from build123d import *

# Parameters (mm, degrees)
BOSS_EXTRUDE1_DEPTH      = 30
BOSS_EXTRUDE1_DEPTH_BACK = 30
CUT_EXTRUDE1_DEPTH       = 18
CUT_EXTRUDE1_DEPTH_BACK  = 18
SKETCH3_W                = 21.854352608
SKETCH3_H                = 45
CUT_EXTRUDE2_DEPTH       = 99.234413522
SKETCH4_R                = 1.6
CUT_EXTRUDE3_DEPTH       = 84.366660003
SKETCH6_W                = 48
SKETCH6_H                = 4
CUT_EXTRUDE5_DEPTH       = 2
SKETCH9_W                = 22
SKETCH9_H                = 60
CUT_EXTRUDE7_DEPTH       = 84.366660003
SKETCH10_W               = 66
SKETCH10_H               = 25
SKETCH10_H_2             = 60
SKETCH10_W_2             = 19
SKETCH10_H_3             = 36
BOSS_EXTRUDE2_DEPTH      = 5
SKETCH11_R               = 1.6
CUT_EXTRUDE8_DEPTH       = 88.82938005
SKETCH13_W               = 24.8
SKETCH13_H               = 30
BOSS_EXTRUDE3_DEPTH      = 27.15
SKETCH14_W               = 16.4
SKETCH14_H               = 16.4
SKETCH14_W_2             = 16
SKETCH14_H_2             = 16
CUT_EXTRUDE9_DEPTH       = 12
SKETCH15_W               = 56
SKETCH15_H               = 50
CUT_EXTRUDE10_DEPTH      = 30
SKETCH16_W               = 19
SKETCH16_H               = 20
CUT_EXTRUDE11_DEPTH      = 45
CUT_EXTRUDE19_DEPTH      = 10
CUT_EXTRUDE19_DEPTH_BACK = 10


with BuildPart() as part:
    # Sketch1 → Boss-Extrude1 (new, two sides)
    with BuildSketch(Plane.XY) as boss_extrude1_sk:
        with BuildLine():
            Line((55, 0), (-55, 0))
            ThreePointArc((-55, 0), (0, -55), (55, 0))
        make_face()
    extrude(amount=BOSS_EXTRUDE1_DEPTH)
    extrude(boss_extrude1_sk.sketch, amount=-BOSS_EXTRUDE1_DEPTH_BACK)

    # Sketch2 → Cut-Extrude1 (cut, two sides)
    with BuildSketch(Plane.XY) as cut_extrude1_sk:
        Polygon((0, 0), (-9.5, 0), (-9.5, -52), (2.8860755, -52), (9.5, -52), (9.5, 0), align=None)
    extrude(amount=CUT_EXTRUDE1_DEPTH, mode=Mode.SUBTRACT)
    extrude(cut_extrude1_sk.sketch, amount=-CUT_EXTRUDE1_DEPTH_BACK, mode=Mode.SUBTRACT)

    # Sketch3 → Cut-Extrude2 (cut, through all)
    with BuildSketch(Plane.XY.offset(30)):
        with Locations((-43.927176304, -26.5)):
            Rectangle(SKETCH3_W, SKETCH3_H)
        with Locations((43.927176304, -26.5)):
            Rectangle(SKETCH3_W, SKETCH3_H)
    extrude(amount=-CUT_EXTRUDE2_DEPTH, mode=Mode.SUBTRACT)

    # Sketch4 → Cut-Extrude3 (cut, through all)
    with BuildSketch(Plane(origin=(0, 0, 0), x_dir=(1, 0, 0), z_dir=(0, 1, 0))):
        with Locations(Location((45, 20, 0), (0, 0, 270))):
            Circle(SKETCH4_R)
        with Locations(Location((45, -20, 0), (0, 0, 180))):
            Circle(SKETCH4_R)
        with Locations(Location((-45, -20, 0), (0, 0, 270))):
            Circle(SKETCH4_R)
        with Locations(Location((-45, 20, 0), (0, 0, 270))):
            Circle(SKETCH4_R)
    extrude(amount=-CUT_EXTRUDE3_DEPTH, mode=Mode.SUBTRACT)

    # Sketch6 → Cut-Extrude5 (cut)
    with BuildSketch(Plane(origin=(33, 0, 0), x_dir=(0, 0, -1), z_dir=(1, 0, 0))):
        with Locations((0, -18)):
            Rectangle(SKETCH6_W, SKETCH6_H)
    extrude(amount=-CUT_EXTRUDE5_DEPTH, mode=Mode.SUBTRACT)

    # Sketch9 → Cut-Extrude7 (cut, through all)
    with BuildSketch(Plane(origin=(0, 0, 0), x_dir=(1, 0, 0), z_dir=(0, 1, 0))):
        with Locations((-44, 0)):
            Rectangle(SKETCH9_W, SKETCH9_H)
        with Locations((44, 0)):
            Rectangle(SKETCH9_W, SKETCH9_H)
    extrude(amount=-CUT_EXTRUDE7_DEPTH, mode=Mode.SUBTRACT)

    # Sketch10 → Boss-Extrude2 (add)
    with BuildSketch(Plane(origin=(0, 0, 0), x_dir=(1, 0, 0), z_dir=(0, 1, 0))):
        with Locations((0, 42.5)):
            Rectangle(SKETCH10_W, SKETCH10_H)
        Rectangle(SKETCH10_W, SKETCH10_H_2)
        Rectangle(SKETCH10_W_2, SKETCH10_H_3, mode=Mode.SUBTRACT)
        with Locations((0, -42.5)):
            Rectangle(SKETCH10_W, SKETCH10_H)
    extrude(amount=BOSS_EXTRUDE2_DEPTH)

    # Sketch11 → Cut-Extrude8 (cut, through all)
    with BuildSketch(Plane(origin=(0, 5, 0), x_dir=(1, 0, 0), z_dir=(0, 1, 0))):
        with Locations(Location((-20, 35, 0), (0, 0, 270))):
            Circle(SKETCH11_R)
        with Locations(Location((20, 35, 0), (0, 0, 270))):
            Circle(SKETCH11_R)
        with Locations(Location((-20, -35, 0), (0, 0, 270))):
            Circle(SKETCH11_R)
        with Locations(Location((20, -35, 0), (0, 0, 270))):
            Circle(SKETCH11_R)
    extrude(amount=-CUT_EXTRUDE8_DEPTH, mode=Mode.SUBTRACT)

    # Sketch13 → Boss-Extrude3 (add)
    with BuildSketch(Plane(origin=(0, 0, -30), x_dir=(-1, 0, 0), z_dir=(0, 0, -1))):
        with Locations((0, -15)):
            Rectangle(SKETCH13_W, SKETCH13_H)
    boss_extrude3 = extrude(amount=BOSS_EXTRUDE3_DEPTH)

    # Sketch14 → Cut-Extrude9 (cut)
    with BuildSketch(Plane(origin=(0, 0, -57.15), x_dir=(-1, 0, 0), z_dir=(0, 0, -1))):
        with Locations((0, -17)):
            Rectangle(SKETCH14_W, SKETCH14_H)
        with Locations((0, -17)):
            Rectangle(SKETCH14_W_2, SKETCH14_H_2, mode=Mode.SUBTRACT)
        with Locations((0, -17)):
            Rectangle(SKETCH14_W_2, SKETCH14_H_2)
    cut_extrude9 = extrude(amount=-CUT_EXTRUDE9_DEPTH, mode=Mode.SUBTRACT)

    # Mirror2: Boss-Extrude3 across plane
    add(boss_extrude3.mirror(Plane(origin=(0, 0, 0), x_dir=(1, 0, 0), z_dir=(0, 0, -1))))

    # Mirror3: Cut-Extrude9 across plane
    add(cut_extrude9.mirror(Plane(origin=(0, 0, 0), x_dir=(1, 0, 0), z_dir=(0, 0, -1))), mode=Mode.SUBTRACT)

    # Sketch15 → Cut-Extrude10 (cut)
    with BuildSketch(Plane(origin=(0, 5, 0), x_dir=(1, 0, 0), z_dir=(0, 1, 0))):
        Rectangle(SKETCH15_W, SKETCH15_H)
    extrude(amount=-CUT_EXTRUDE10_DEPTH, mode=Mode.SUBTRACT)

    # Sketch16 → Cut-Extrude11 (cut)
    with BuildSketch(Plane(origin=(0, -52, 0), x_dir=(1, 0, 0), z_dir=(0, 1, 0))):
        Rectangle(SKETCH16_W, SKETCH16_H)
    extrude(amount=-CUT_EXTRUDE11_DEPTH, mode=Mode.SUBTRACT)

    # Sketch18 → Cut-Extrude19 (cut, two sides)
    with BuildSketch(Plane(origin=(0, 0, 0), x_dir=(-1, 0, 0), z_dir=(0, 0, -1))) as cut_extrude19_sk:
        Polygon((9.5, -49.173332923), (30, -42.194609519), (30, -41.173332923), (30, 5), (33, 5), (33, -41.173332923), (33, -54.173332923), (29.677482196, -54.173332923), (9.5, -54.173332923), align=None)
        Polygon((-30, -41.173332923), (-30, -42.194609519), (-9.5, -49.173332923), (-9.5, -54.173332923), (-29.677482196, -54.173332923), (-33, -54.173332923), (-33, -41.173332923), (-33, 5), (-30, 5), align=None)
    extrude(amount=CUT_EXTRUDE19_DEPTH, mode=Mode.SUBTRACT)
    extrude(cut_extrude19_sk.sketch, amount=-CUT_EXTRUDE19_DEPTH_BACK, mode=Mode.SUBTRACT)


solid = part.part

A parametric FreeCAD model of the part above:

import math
import FreeCAD as App
import Part
import Sketcher


def add_polygon(sketch, points):
    """Adds a closed chain of lines whose ends are joined by coincident constraints."""
    first, n = sketch.GeometryCount, len(points)
    for a, b in zip(points, points[1:] + points[:1]):
        sketch.addGeometry(Part.LineSegment(App.Vector(*a, 0), App.Vector(*b, 0)), False)
    for i in range(n):
        sketch.addConstraint(Sketcher.Constraint("Coincident", first + i, 2, first + (i + 1) % n, 1))

doc = App.newDocument("Part")
body = doc.addObject("PartDesign::Body", "Body")

sketch1 = body.newObject("Sketcher::SketchObject", "Sketch")
sketch1.AttachmentSupport = (doc.getObject("XY_Plane"), [""])
sketch1.MapMode = "FlatFace"
sketch1.addGeometry(Part.LineSegment(App.Vector(55, 0, 0), App.Vector(-55, 0, 0)), False)
sketch1.addGeometry(Part.ArcOfCircle(Part.Circle(App.Vector(0, 0, 0), App.Vector(0, 0, 1), 55), math.radians(180), math.radians(360)), False)
sketch1.addConstraint(Sketcher.Constraint("Coincident", 0, 1, 1, 2))
sketch1.addConstraint(Sketcher.Constraint("Coincident", 1, 1, 0, 2))
sketch1.addConstraint(Sketcher.Constraint("Horizontal", 0))
sketch1.addConstraint(Sketcher.Constraint("Coincident", 1, 3, -1, 1))
sketch1.addConstraint(Sketcher.Constraint("PointOnObject", 0, 1, -1))
sketch1.addConstraint(Sketcher.Constraint("Radius", 1, 55.0))
pad1 = body.newObject("PartDesign::Pad", "Pad")
pad1.Profile = sketch1
pad1.Type = "TwoLengths"
pad1.Length = 30
pad1.Length2 = 30

sketch2 = body.newObject("Sketcher::SketchObject", "Sketch001")
sketch2.AttachmentSupport = (doc.getObject("XY_Plane"), [""])
sketch2.MapMode = "FlatFace"
add_polygon(sketch2, [(-9.5, 0), (-9.5, -52), (9.5, -52), (9.5, 0)])
sketch2.addConstraint(Sketcher.Constraint("Vertical", 0))
sketch2.addConstraint(Sketcher.Constraint("Horizontal", 1))
sketch2.addConstraint(Sketcher.Constraint("Vertical", 2))
sketch2.addConstraint(Sketcher.Constraint("Horizontal", 3))
sketch2.addConstraint(Sketcher.Constraint("Symmetric", 2, 2, 3, 2, -1, 1))
sketch2.addConstraint(Sketcher.Constraint("DistanceX", 1, 1, 1, 2, 19.0))
sketch2.addConstraint(Sketcher.Constraint("DistanceY", 0, 2, 0, 1, 52.0))
pocket1 = body.newObject("PartDesign::Pocket", "Pocket")
pocket1.Profile = sketch2
pocket1.Type = "TwoLengths"
pocket1.Length = 18
pocket1.Length2 = 18
pocket1.Reversed = True

sketch3 = body.newObject("Sketcher::SketchObject", "Sketch002")
sketch3.AttachmentSupport = (doc.getObject("XY_Plane"), [""])
sketch3.MapMode = "FlatFace"
sketch3.AttachmentOffset = App.Placement(App.Vector(0, 0, 30), App.Rotation())
add_polygon(sketch3, [(-54.854353, -4), (-54.854353, -49), (-33, -49), (-33, -4)])
add_polygon(sketch3, [(33, -4), (33, -49), (54.854353, -49), (54.854353, -4)])
sketch3.addConstraint(Sketcher.Constraint("Vertical", 0))
sketch3.addConstraint(Sketcher.Constraint("Horizontal", 1))
sketch3.addConstraint(Sketcher.Constraint("Vertical", 2))
sketch3.addConstraint(Sketcher.Constraint("Horizontal", 3))
sketch3.addConstraint(Sketcher.Constraint("Vertical", 4))
sketch3.addConstraint(Sketcher.Constraint("Horizontal", 5))
sketch3.addConstraint(Sketcher.Constraint("Vertical", 6))
sketch3.addConstraint(Sketcher.Constraint("Horizontal", 7))
sketch3.addConstraint(Sketcher.Constraint("Symmetric", 1, 2, 4, 2, -2))
sketch3.addConstraint(Sketcher.Constraint("Symmetric", 3, 2, 6, 2, -2))
sketch3.addConstraint(Sketcher.Constraint("DistanceY", 0, 2, 0, 1, 45.0))
sketch3.addConstraint(Sketcher.Constraint("DistanceY", 0, 2, -1, 1, 49.0))
sketch3.addConstraint(Sketcher.Constraint("DistanceX", 1, 2, -1, 1, 33.0))
sketch3.addConstraint(Sketcher.Constraint("DistanceX", 1, 1, 1, 2, 21.854353))
pocket2 = body.newObject("PartDesign::Pocket", "Pocket001")
pocket2.Profile = sketch3
pocket2.Type = "ThroughAll"

sketch4 = body.newObject("Sketcher::SketchObject", "Sketch003")
sketch4.AttachmentSupport = (doc.getObject("XZ_Plane"), [""])
sketch4.MapMode = "FlatFace"
sketch4.addGeometry(Part.Circle(App.Vector(45, -20, 0), App.Vector(0, 0, 1), 1.6), False)
sketch4.addGeometry(Part.Circle(App.Vector(45, 20, 0), App.Vector(0, 0, 1), 1.6), False)
sketch4.addGeometry(Part.Circle(App.Vector(-45, 20, 0), App.Vector(0, 0, 1), 1.6), False)
sketch4.addGeometry(Part.Circle(App.Vector(-45, -20, 0), App.Vector(0, 0, 1), 1.6), False)
sketch4.addConstraint(Sketcher.Constraint("Equal", 0, 1))
sketch4.addConstraint(Sketcher.Constraint("Equal", 1, 2))
sketch4.addConstraint(Sketcher.Constraint("Equal", 2, 3))
sketch4.addConstraint(Sketcher.Constraint("Symmetric", 0, 3, 2, 3, -1, 1))
sketch4.addConstraint(Sketcher.Constraint("Symmetric", 1, 3, 3, 3, -1, 1))
sketch4.addConstraint(Sketcher.Constraint("Symmetric", 1, 3, 2, 3, -2))
sketch4.addConstraint(Sketcher.Constraint("Diameter", 0, 3.2))
sketch4.addConstraint(Sketcher.Constraint("DistanceX", -1, 1, 0, 3, 45.0))
sketch4.addConstraint(Sketcher.Constraint("DistanceY", 0, 3, -1, 1, 20.0))
pocket3 = body.newObject("PartDesign::Pocket", "Pocket002")
pocket3.Profile = sketch4
pocket3.Type = "ThroughAll"
pocket3.Reversed = True

sketch5 = body.newObject("Sketcher::SketchObject", "Sketch004")
sketch5.AttachmentSupport = (doc.getObject("YZ_Plane"), [""])
sketch5.MapMode = "FlatFace"
sketch5.AttachmentOffset = App.Placement(App.Vector(0, 0, 33), App.Rotation())
add_polygon(sketch5, [(-16, 24), (-20, 24), (-20, -24), (-16, -24)])
sketch5.addConstraint(Sketcher.Constraint("Horizontal", 0))
sketch5.addConstraint(Sketcher.Constraint("Vertical", 1))
sketch5.addConstraint(Sketcher.Constraint("Horizontal", 2))
sketch5.addConstraint(Sketcher.Constraint("Vertical", 3))
sketch5.addConstraint(Sketcher.Constraint("DistanceX", 0, 2, 0, 1, 4.0))
sketch5.addConstraint(Sketcher.Constraint("DistanceY", 1, 2, 1, 1, 48.0))
sketch5.addConstraint(Sketcher.Constraint("DistanceX", 0, 2, -1, 1, 20.0))
sketch5.addConstraint(Sketcher.Constraint("DistanceY", -1, 1, 0, 2, 24.0))
pocket4 = body.newObject("PartDesign::Pocket", "Pocket003")
pocket4.Profile = sketch5
pocket4.Length = 2

sketch6 = body.newObject("Sketcher::SketchObject", "Sketch005")
sketch6.AttachmentSupport = (doc.getObject("XZ_Plane"), [""])
sketch6.MapMode = "FlatFace"
add_polygon(sketch6, [(-55, -30), (-55, 30), (-33, 30), (-33, -30)])
add_polygon(sketch6, [(33, -30), (33, 30), (55, 30), (55, -30)])
sketch6.addConstraint(Sketcher.Constraint("Vertical", 0))
sketch6.addConstraint(Sketcher.Constraint("Horizontal", 1))
sketch6.addConstraint(Sketcher.Constraint("Vertical", 2))
sketch6.addConstraint(Sketcher.Constraint("Horizontal", 3))
sketch6.addConstraint(Sketcher.Constraint("Vertical", 4))
sketch6.addConstraint(Sketcher.Constraint("Horizontal", 5))
sketch6.addConstraint(Sketcher.Constraint("Vertical", 6))
sketch6.addConstraint(Sketcher.Constraint("Horizontal", 7))
sketch6.addConstraint(Sketcher.Constraint("Symmetric", 2, 2, 4, 2, -1, 1))
sketch6.addConstraint(Sketcher.Constraint("Symmetric", 0, 2, 6, 2, -1, 1))
sketch6.addConstraint(Sketcher.Constraint("Horizontal", 1, 2, 4, 2))
sketch6.addConstraint(Sketcher.Constraint("DistanceX", 1, 1, 1, 2, 22.0))
sketch6.addConstraint(Sketcher.Constraint("DistanceY", 0, 1, 0, 2, 60.0))
sketch6.addConstraint(Sketcher.Constraint("DistanceX", 0, 2, -1, 1, 55.0))
pocket5 = body.newObject("PartDesign::Pocket", "Pocket004")
pocket5.Profile = sketch6
pocket5.Type = "ThroughAll"
pocket5.Reversed = True

sketch7 = body.newObject("Sketcher::SketchObject", "Sketch006")
sketch7.AttachmentSupport = (doc.getObject("XZ_Plane"), [""])
sketch7.MapMode = "FlatFace"
add_polygon(sketch7, [(-33, -55), (-33, 55), (33, 55), (33, -55)])
add_polygon(sketch7, [(9.5, 18), (-9.5, 18), (-9.5, -18), (9.5, -18)])
sketch7.addConstraint(Sketcher.Constraint("Vertical", 0))
sketch7.addConstraint(Sketcher.Constraint("Horizontal", 1))
sketch7.addConstraint(Sketcher.Constraint("Vertical", 2))
sketch7.addConstraint(Sketcher.Constraint("Horizontal", 3))
sketch7.addConstraint(Sketcher.Constraint("Horizontal", 4))
sketch7.addConstraint(Sketcher.Constraint("Vertical", 5))
sketch7.addConstraint(Sketcher.Constraint("Horizontal", 6))
sketch7.addConstraint(Sketcher.Constraint("Vertical", 7))
sketch7.addConstraint(Sketcher.Constraint("Symmetric", 0, 2, 2, 2, -1, 1))
sketch7.addConstraint(Sketcher.Constraint("Symmetric", 4, 2, 6, 2, -1, 1))
sketch7.addConstraint(Sketcher.Constraint("DistanceX", 1, 1, 1, 2, 66.0))
sketch7.addConstraint(Sketcher.Constraint("DistanceX", 4, 2, 4, 1, 19.0))
sketch7.addConstraint(Sketcher.Constraint("DistanceY", 0, 1, 0, 2, 110.0))
sketch7.addConstraint(Sketcher.Constraint("DistanceY", 5, 2, 5, 1, 36.0))
pad2 = body.newObject("PartDesign::Pad", "Pad001")
pad2.Profile = sketch7
pad2.Length = 5
pad2.Reversed = True

sketch8 = body.newObject("Sketcher::SketchObject", "Sketch007")
sketch8.AttachmentSupport = (doc.getObject("XZ_Plane"), [""])
sketch8.MapMode = "FlatFace"
sketch8.AttachmentOffset = App.Placement(App.Vector(0, 0, -5), App.Rotation())
sketch8.addGeometry(Part.Circle(App.Vector(-20, -35, 0), App.Vector(0, 0, 1), 1.6), False)
sketch8.addGeometry(Part.Circle(App.Vector(20, -35, 0), App.Vector(0, 0, 1), 1.6), False)
sketch8.addGeometry(Part.Circle(App.Vector(-20, 35, 0), App.Vector(0, 0, 1), 1.6), False)
sketch8.addGeometry(Part.Circle(App.Vector(20, 35, 0), App.Vector(0, 0, 1), 1.6), False)
sketch8.addConstraint(Sketcher.Constraint("Equal", 0, 1))
sketch8.addConstraint(Sketcher.Constraint("Equal", 1, 2))
sketch8.addConstraint(Sketcher.Constraint("Equal", 2, 3))
sketch8.addConstraint(Sketcher.Constraint("Symmetric", 1, 3, 2, 3, -1, 1))
sketch8.addConstraint(Sketcher.Constraint("Symmetric", 0, 3, 3, 3, -1, 1))
sketch8.addConstraint(Sketcher.Constraint("Symmetric", 0, 3, 1, 3, -2))
sketch8.addConstraint(Sketcher.Constraint("Diameter", 0, 3.2))
sketch8.addConstraint(Sketcher.Constraint("DistanceX", 0, 3, -1, 1, 20.0))
sketch8.addConstraint(Sketcher.Constraint("DistanceY", 0, 3, -1, 1, 35.0))
pocket6 = body.newObject("PartDesign::Pocket", "Pocket005")
pocket6.Profile = sketch8
pocket6.Type = "ThroughAll"
pocket6.Reversed = True

sketch9 = body.newObject("Sketcher::SketchObject", "Sketch008")
sketch9.AttachmentSupport = (doc.getObject("XY_Plane"), [""])
sketch9.MapMode = "FlatFace"
sketch9.AttachmentOffset = App.Placement(App.Vector(0, 0, -30), App.Rotation())
add_polygon(sketch9, [(12.4, 0), (12.4, -30), (-12.4, -30), (-12.4, 0)])
sketch9.addConstraint(Sketcher.Constraint("Vertical", 0))
sketch9.addConstraint(Sketcher.Constraint("Horizontal", 1))
sketch9.addConstraint(Sketcher.Constraint("Vertical", 2))
sketch9.addConstraint(Sketcher.Constraint("Horizontal", 3))
sketch9.addConstraint(Sketcher.Constraint("Symmetric", 2, 2, 3, 2, -1, 1))
sketch9.addConstraint(Sketcher.Constraint("DistanceY", 0, 2, 0, 1, 30.0))
sketch9.addConstraint(Sketcher.Constraint("DistanceX", 1, 2, 1, 1, 24.8))
pad3 = body.newObject("PartDesign::Pad", "Pad002")
pad3.Profile = sketch9
pad3.Length = 27.15
pad3.Reversed = True

sketch10 = body.newObject("Sketcher::SketchObject", "Sketch009")
sketch10.AttachmentSupport = (doc.getObject("XY_Plane"), [""])
sketch10.MapMode = "FlatFace"
sketch10.AttachmentOffset = App.Placement(App.Vector(0, 0, -57.15), App.Rotation())
add_polygon(sketch10, [(8.2, -8.8), (8.2, -25.2), (-8.2, -25.2), (-8.2, -8.8)])
sketch10.addConstraint(Sketcher.Constraint("Vertical", 0))
sketch10.addConstraint(Sketcher.Constraint("Horizontal", 1))
sketch10.addConstraint(Sketcher.Constraint("Vertical", 2))
sketch10.addConstraint(Sketcher.Constraint("Horizontal", 3))
sketch10.addConstraint(Sketcher.Constraint("Equal", 3, 0))
sketch10.addConstraint(Sketcher.Constraint("DistanceX", 1, 2, 1, 1, 16.4))
sketch10.addConstraint(Sketcher.Constraint("DistanceX", -1, 1, 0, 2, 8.2))
sketch10.addConstraint(Sketcher.Constraint("DistanceY", 0, 2, -1, 1, 25.2))
pocket7 = body.newObject("PartDesign::Pocket", "Pocket006")
pocket7.Profile = sketch10
pocket7.Length = 12
pocket7.Reversed = True
doc.recompute()

mirrored = body.newObject("PartDesign::Mirrored", "Mirrored")
mirrored.Originals = [pad3]
mirrored.MirrorPlane = (doc.getObject("XY_Plane"), [""])
body.Tip = mirrored
doc.recompute()

mirrored2 = body.newObject("PartDesign::Mirrored", "Mirrored001")
mirrored2.Originals = [pocket7]
mirrored2.MirrorPlane = (doc.getObject("XY_Plane"), [""])
body.Tip = mirrored2

sketch11 = body.newObject("Sketcher::SketchObject", "Sketch010")
sketch11.AttachmentSupport = (doc.getObject("XZ_Plane"), [""])
sketch11.MapMode = "FlatFace"
sketch11.AttachmentOffset = App.Placement(App.Vector(0, 0, -5), App.Rotation())
add_polygon(sketch11, [(-28, -25), (-28, 25), (28, 25), (28, -25)])
sketch11.addConstraint(Sketcher.Constraint("Vertical", 0))
sketch11.addConstraint(Sketcher.Constraint("Horizontal", 1))
sketch11.addConstraint(Sketcher.Constraint("Vertical", 2))
sketch11.addConstraint(Sketcher.Constraint("Horizontal", 3))
sketch11.addConstraint(Sketcher.Constraint("Symmetric", 0, 2, 2, 2, -1, 1))
sketch11.addConstraint(Sketcher.Constraint("DistanceX", 1, 1, 1, 2, 56.0))
sketch11.addConstraint(Sketcher.Constraint("DistanceY", 0, 1, 0, 2, 50.0))
pocket8 = body.newObject("PartDesign::Pocket", "Pocket007")
pocket8.Profile = sketch11
pocket8.Length = 30
pocket8.Reversed = True

sketch12 = body.newObject("Sketcher::SketchObject", "Sketch011")
sketch12.AttachmentSupport = (doc.getObject("XZ_Plane"), [""])
sketch12.MapMode = "FlatFace"
sketch12.AttachmentOffset = App.Placement(App.Vector(0, 0, 52), App.Rotation())
add_polygon(sketch12, [(-9.5, -10), (-9.5, 10), (9.5, 10), (9.5, -10)])
sketch12.addConstraint(Sketcher.Constraint("Vertical", 0))
sketch12.addConstraint(Sketcher.Constraint("Horizontal", 1))
sketch12.addConstraint(Sketcher.Constraint("Vertical", 2))
sketch12.addConstraint(Sketcher.Constraint("Horizontal", 3))
sketch12.addConstraint(Sketcher.Constraint("Symmetric", 0, 2, 2, 2, -1, 1))
sketch12.addConstraint(Sketcher.Constraint("DistanceX", 1, 1, 1, 2, 19.0))
sketch12.addConstraint(Sketcher.Constraint("DistanceY", 0, 1, 0, 2, 20.0))
pocket9 = body.newObject("PartDesign::Pocket", "Pocket008")
pocket9.Profile = sketch12
pocket9.Length = 45
pocket9.Reversed = True

sketch13 = body.newObject("Sketcher::SketchObject", "Sketch012")
sketch13.AttachmentSupport = (doc.getObject("XY_Plane"), [""])
sketch13.MapMode = "FlatFace"
add_polygon(sketch13, [(-30, -42.19461), (-9.5, -49.173333), (-9.5, -54.173333), (-33, -54.173333), (-33, 5), (-30, 5)])
add_polygon(sketch13, [(30, -42.19461), (30, 5), (33, 5), (33, -54.173333), (9.5, -54.173333), (9.5, -49.173333)])
sketch13.addConstraint(Sketcher.Constraint("Vertical", 1))
sketch13.addConstraint(Sketcher.Constraint("Horizontal", 2))
sketch13.addConstraint(Sketcher.Constraint("Vertical", 3))
sketch13.addConstraint(Sketcher.Constraint("Horizontal", 4))
sketch13.addConstraint(Sketcher.Constraint("Vertical", 5))
sketch13.addConstraint(Sketcher.Constraint("Vertical", 6))
sketch13.addConstraint(Sketcher.Constraint("Horizontal", 7))
sketch13.addConstraint(Sketcher.Constraint("Vertical", 8))
sketch13.addConstraint(Sketcher.Constraint("Horizontal", 9))
sketch13.addConstraint(Sketcher.Constraint("Vertical", 10))
sketch13.addConstraint(Sketcher.Constraint("Symmetric", 4, 2, 6, 2, -2))
sketch13.addConstraint(Sketcher.Constraint("Symmetric", 2, 2, 8, 2, -2))
sketch13.addConstraint(Sketcher.Constraint("Symmetric", 0, 2, 10, 2, -2))
sketch13.addConstraint(Sketcher.Constraint("Horizontal", 5, 2, 11, 2))
sketch13.addConstraint(Sketcher.Constraint("DistanceX", 4, 1, 4, 2, 3.0))
sketch13.addConstraint(Sketcher.Constraint("DistanceY", 1, 2, 1, 1, 5.0))
sketch13.addConstraint(Sketcher.Constraint("DistanceX", 2, 2, 2, 1, 23.5))
sketch13.addConstraint(Sketcher.Constraint("DistanceX", 2, 2, -1, 1, 33.0))
sketch13.addConstraint(Sketcher.Constraint("DistanceY", -1, 1, 3, 2, 5.0))
sketch13.addConstraint(Sketcher.Constraint("DistanceY", 5, 2, 5, 1, 47.19461))
sketch13.addConstraint(Sketcher.Constraint("DistanceY", 3, 1, 3, 2, 59.173333))
pocket10 = body.newObject("PartDesign::Pocket", "Pocket009")
pocket10.Profile = sketch13
pocket10.Type = "TwoLengths"
pocket10.Length = 10
pocket10.Length2 = 10

doc.recompute()
